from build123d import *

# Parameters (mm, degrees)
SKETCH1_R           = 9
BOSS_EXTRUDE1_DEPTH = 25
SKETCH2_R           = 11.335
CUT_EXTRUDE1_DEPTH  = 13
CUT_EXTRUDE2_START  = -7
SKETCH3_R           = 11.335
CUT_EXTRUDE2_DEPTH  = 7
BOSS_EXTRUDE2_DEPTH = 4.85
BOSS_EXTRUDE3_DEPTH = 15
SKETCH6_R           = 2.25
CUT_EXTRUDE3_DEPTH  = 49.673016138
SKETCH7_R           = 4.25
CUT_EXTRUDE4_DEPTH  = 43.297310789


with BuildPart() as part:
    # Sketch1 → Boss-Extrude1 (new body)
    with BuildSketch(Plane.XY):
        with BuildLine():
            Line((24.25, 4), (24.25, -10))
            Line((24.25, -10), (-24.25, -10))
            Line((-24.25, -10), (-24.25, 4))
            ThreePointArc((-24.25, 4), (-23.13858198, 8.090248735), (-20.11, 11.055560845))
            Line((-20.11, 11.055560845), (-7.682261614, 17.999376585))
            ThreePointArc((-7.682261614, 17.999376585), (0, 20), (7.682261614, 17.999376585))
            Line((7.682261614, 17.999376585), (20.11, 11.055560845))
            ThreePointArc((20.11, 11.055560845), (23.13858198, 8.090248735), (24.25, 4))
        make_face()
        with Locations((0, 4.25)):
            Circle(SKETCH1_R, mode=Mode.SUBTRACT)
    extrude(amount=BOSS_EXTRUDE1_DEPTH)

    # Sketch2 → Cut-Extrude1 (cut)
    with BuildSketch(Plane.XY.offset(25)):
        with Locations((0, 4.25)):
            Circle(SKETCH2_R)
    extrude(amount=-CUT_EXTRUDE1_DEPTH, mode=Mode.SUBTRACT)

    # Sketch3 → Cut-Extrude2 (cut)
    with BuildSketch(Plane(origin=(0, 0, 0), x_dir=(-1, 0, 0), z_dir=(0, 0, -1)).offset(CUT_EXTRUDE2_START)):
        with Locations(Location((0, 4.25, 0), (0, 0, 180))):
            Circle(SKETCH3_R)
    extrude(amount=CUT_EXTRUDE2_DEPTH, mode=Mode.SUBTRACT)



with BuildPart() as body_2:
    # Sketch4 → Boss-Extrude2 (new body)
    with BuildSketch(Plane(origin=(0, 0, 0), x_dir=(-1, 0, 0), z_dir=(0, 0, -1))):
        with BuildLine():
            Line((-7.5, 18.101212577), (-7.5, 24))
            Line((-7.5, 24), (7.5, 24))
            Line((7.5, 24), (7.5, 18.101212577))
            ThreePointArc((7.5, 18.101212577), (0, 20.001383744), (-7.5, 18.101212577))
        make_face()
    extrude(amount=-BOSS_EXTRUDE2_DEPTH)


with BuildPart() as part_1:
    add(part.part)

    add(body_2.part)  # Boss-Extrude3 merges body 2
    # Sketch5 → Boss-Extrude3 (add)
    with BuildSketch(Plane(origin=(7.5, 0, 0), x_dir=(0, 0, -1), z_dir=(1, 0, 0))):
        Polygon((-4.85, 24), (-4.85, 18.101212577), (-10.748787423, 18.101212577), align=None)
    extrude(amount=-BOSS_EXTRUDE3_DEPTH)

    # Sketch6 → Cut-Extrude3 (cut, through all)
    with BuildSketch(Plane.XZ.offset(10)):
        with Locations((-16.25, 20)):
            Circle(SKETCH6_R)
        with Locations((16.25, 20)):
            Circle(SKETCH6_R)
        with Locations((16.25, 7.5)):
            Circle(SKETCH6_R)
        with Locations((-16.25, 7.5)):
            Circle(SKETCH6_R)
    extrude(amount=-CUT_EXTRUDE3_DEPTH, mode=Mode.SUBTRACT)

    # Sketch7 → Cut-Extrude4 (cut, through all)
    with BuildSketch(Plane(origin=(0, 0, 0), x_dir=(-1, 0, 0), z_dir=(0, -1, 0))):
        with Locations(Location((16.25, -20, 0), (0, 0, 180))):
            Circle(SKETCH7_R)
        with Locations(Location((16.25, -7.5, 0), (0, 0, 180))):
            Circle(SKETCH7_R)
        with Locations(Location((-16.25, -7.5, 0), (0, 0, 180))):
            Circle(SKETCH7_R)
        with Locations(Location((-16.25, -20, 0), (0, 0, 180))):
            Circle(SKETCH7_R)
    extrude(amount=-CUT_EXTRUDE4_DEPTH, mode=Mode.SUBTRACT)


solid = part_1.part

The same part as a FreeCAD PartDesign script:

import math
import FreeCAD as App
import Part
import Sketcher
Q = App.Units.Quantity


def add_polygon(sketch, points):
    """Adds a closed chain of lines whose ends are joined by coincident constraints."""
    first, n = sketch.GeometryCount, len(points)
    for a, b in zip(points, points[1:] + points[:1]):
        sketch.addGeometry(Part.LineSegment(App.Vector(*a, 0), App.Vector(*b, 0)), False)
    for i in range(n):
        sketch.addConstraint(Sketcher.Constraint("Coincident", first + i, 2, first + (i + 1) % n, 1))

doc = App.newDocument("Part")
body = doc.addObject("PartDesign::Body", "Body")

# Sketch on XY plane
sketch1 = body.newObject("Sketcher::SketchObject", "Sketch")
sketch1.AttachmentSupport = (doc.getObject("XY_Plane"), [""])
sketch1.MapMode = "FlatFace"
sketch1.addGeometry([
    Part.LineSegment(App.Vector(24, -10, 0), App.Vector(24, 4, 0)),  # 0
    Part.ArcOfCircle(Part.Circle(App.Vector(16, 4, 0), App.Vector(0, 0, 1), 8), math.radians(0), math.radians(61)),  # 1
    Part.LineSegment(App.Vector(20, 11, 0), App.Vector(8, 18, 0)),  # 2
    Part.ArcOfCircle(Part.Circle(App.Vector(0, 4, 0), App.Vector(0, 0, 1), 16), math.radians(61), math.radians(119)),  # 3
    Part.LineSegment(App.Vector(-8, 18, 0), App.Vector(-20, 11, 0)),  # 4
    Part.ArcOfCircle(Part.Circle(App.Vector(-16, 4, 0), App.Vector(0, 0, 1), 8), math.radians(119), math.radians(180)),  # 5
    Part.LineSegment(App.Vector(-24, 4, 0), App.Vector(-24, -10, 0)),  # 6
    Part.LineSegment(App.Vector(-24, -10, 0), App.Vector(24, -10, 0)),  # 7
    Part.Circle(App.Vector(0, 4, 0), App.Vector(0, 0, 1), 9),  # 8
], False)
sketch1.addConstraint([
    Sketcher.Constraint("Tangent", 0, 2, 1, 1),
    Sketcher.Constraint("Tangent", 1, 2, 2, 1),
    Sketcher.Constraint("Tangent", 2, 2, 3, 1),
    Sketcher.Constraint("Tangent", 3, 2, 4, 1),
    Sketcher.Constraint("Tangent", 4, 2, 5, 1),
    Sketcher.Constraint("Tangent", 5, 2, 6, 1),
    Sketcher.Constraint("Coincident", 6, 2, 7, 1),
    Sketcher.Constraint("Coincident", 7, 2, 0, 1),
    Sketcher.Constraint("Vertical", 0),
    Sketcher.Constraint("Vertical", 6),
    Sketcher.Constraint("Horizontal", 7),
    Sketcher.Constraint("Coincident", 8, 3, 3, 3),
    Sketcher.Constraint("Equal", 1, 5),
    Sketcher.Constraint("Symmetric", 1, 3, 5, 3, -2),
    Sketcher.Constraint("PointOnObject", 3, 3, -2),
    Sketcher.Constraint("Diameter", 8, Q("18 mm")),
    Sketcher.Constraint("DistanceY", 0, 1, 0, 2, Q("14 mm")),
    Sketcher.Constraint("Radius", 3, Q("15.75 mm")),
    Sketcher.Constraint("DistanceX", 7, 1, 7, 2, Q("48.5 mm")),
    Sketcher.Constraint("DistanceY", -1, 1, 1, 3, Q("4 mm")),
    Sketcher.Constraint("DistanceY", -1, 1, 3, 3, Q("4.25 mm")),
    Sketcher.Constraint("DistanceX", -1, 1, 1, 2, Q("20.11 mm")),
])
pad1 = body.newObject("PartDesign::Pad", "Pad")
pad1.Profile = sketch1
pad1.Length = 25

# Sketch on XY plane
sketch2 = body.newObject("Sketcher::SketchObject", "Sketch001")
sketch2.AttachmentSupport = (doc.getObject("XY_Plane"), [""])
sketch2.MapMode = "FlatFace"
sketch2.AttachmentOffset = App.Placement(App.Vector(0, 0, 25), App.Rotation())
sketch2.addGeometry(Part.Circle(App.Vector(0, 4, 0), App.Vector(0, 0, 1), 11), False)
sketch2.addConstraint([
    Sketcher.Constraint("PointOnObject", 0, 3, -2),
    Sketcher.Constraint("Diameter", 0, Q("22.67 mm")),
    Sketcher.Constraint("DistanceY", -1, 1, 0, 3, Q("4.25 mm")),
])
pocket1 = body.newObject("PartDesign::Pocket", "Pocket")
pocket1.Profile = sketch2
pocket1.Length = 13

# Sketch on XY plane
sketch3 = body.newObject("Sketcher::SketchObject", "Sketch002")
sketch3.AttachmentSupport = (doc.getObject("XY_Plane"), [""])
sketch3.MapMode = "FlatFace"
sketch3.AttachmentOffset = App.Placement(App.Vector(0, 0, 7), App.Rotation())
sketch3.addGeometry(Part.Circle(App.Vector(0, 4, 0), App.Vector(0, 0, 1), 11), False)
sketch3.addConstraint([
    Sketcher.Constraint("PointOnObject", 0, 3, -2),
    Sketcher.Constraint("Diameter", 0, Q("22.67 mm")),
    Sketcher.Constraint("DistanceY", -1, 1, 0, 3, Q("4.25 mm")),
])
pocket2 = body.newObject("PartDesign::Pocket", "Pocket001")
pocket2.Profile = sketch3
pocket2.Length = 7
body2 = doc.addObject("PartDesign::Body", "Body001")

# Sketch on XY plane
sketch4 = body2.newObject("Sketcher::SketchObject", "Sketch003")
sketch4.AttachmentSupport = (doc.getObject("XY_Plane001"), [""])
sketch4.MapMode = "FlatFace"
sketch4.addGeometry([
    Part.LineSegment(App.Vector(8, 24, 0), App.Vector(8, 18, 0)),
    Part.ArcOfCircle(Part.Circle(App.Vector(0, 4, 0), App.Vector(0, 0, 1), 16), math.radians(62), math.radians(118)),
    Part.LineSegment(App.Vector(-8, 18, 0), App.Vector(-8, 24, 0)),
    Part.LineSegment(App.Vector(-8, 24, 0), App.Vector(8, 24, 0)),
], False)
sketch4.addConstraint([
    Sketcher.Constraint("Coincident", 0, 2, 1, 1),
    Sketcher.Constraint("Coincident", 1, 2, 2, 1),
    Sketcher.Constraint("Coincident", 2, 2, 3, 1),
    Sketcher.Constraint("Coincident", 3, 2, 0, 1),
    Sketcher.Constraint("Vertical", 0),
    Sketcher.Constraint("Vertical", 2),
    Sketcher.Constraint("Horizontal", 3),
    Sketcher.Constraint("Symmetric", 0, 2, 1, 2, -2),
    Sketcher.Constraint("DistanceX", 3, 1, 3, 2, Q("15 mm")),
    Sketcher.Constraint("DistanceY", -1, 1, 2, 2, Q("24 mm")),
    Sketcher.Constraint("DistanceY", -1, 1, 1, 3, Q("4.25 mm")),
    Sketcher.Constraint("Radius", 1, Q("15.751384 mm")),
])
pad2 = body2.newObject("PartDesign::Pad", "Pad001")
pad2.Profile = sketch4
pad2.Length = 4.85
body.AllowCompound = True
doc.recompute()

boolean = body.newObject("PartDesign::Boolean", "Boolean")
boolean.Type = "Fuse"
boolean.addObjects([body2])

# Sketch on YZ plane
sketch5 = body.newObject("Sketcher::SketchObject", "Sketch004")
sketch5.AttachmentSupport = (doc.getObject("YZ_Plane"), [""])
sketch5.MapMode = "FlatFace"
sketch5.AttachmentOffset = App.Placement(App.Vector(0, 0, 7.5), App.Rotation())
add_polygon(sketch5, [(18, 5), (24, 5), (18, 11)])  # lines 0-2
sketch5.addConstraint([
    Sketcher.Constraint("Horizontal", 0),
    Sketcher.Constraint("Vertical", 2),
    Sketcher.Constraint("Equal", 0, 2),
    Sketcher.Constraint("DistanceX", -1, 1, 0, 2, Q("24 mm")),
    Sketcher.Constraint("DistanceY", -1, 1, 0, 2, Q("4.85 mm")),
    Sketcher.Constraint("DistanceX", 0, 1, 0, 2, Q("5.898787 mm")),
])
pad3 = body.newObject("PartDesign::Pad", "Pad002")
pad3.Profile = sketch5
pad3.Length = 15
pad3.Reversed = True

# Sketch on XZ plane
sketch6 = body.newObject("Sketcher::SketchObject", "Sketch005")
sketch6.AttachmentSupport = (doc.getObject("XZ_Plane"), [""])
sketch6.MapMode = "FlatFace"
sketch6.AttachmentOffset = App.Placement(App.Vector(0, 0, 10), App.Rotation())
sketch6.addGeometry([
    Part.Circle(App.Vector(-16.2, 20, 0), App.Vector(0, 0, 1), 2.2),
    Part.Circle(App.Vector(16.2, 20, 0), App.Vector(0, 0, 1), 2.2),
    Part.Circle(App.Vector(16.2, 7.5, 0), App.Vector(0, 0, 1), 2.2),
    Part.Circle(App.Vector(-16.2, 7.5, 0), App.Vector(0, 0, 1), 2.2),
], False)
sketch6.addConstraint([
    Sketcher.Constraint("Equal", 0, 1),
    Sketcher.Constraint("Equal", 1, 2),
    Sketcher.Constraint("Equal", 2, 3),
    Sketcher.Constraint("Symmetric", 0, 3, 1, 3, -2),
    Sketcher.Constraint("Symmetric", 2, 3, 3, 3, -2),
    Sketcher.Constraint("Vertical", 1, 3, 2, 3),
    Sketcher.Constraint("Diameter", 0, Q("4.5 mm")),
    Sketcher.Constraint("DistanceY", -1, 1, 0, 3, Q("20 mm")),
    Sketcher.Constraint("DistanceY", -1, 1, 2, 3, Q("7.5 mm")),
    Sketcher.Constraint("DistanceX", 0, 3, 1, 3, Q("32.5 mm")),
])
pocket3 = body.newObject("PartDesign::Pocket", "Pocket002")
pocket3.Profile = sketch6
pocket3.Type = "ThroughAll"

# Sketch on XZ plane
sketch7 = body.newObject("Sketcher::SketchObject", "Sketch006")
sketch7.AttachmentSupport = (doc.getObject("XZ_Plane"), [""])
sketch7.MapMode = "FlatFace"
sketch7.addGeometry([
    Part.Circle(App.Vector(-16.2, 20, 0), App.Vector(0, 0, 1), 4.2),
    Part.Circle(App.Vector(-16.2, 7.5, 0), App.Vector(0, 0, 1), 4.2),
    Part.Circle(App.Vector(16.2, 7.5, 0), App.Vector(0, 0, 1), 4.2),
    Part.Circle(App.Vector(16.2, 20, 0), App.Vector(0, 0, 1), 4.2),
], False)
sketch7.addConstraint([
    Sketcher.Constraint("Equal", 0, 1),
    Sketcher.Constraint("Equal", 1, 2),
    Sketcher.Constraint("Equal", 2, 3),
    Sketcher.Constraint("Symmetric", 1, 3, 2, 3, -2),
    Sketcher.Constraint("Symmetric", 0, 3, 3, 3, -2),
    Sketcher.Constraint("Vertical", 0, 3, 1, 3),
    Sketcher.Constraint("Diameter", 0, Q("8.5 mm")),
    Sketcher.Constraint("DistanceY", -1, 1, 0, 3, Q("20 mm")),
    Sketcher.Constraint("DistanceY", -1, 1, 1, 3, Q("7.5 mm")),
    Sketcher.Constraint("DistanceX", 1, 3, 2, 3, Q("32.5 mm")),
])
pocket4 = body.newObject("PartDesign::Pocket", "Pocket003")
pocket4.Profile = sketch7
pocket4.Type = "ThroughAll"

doc.recompute()
